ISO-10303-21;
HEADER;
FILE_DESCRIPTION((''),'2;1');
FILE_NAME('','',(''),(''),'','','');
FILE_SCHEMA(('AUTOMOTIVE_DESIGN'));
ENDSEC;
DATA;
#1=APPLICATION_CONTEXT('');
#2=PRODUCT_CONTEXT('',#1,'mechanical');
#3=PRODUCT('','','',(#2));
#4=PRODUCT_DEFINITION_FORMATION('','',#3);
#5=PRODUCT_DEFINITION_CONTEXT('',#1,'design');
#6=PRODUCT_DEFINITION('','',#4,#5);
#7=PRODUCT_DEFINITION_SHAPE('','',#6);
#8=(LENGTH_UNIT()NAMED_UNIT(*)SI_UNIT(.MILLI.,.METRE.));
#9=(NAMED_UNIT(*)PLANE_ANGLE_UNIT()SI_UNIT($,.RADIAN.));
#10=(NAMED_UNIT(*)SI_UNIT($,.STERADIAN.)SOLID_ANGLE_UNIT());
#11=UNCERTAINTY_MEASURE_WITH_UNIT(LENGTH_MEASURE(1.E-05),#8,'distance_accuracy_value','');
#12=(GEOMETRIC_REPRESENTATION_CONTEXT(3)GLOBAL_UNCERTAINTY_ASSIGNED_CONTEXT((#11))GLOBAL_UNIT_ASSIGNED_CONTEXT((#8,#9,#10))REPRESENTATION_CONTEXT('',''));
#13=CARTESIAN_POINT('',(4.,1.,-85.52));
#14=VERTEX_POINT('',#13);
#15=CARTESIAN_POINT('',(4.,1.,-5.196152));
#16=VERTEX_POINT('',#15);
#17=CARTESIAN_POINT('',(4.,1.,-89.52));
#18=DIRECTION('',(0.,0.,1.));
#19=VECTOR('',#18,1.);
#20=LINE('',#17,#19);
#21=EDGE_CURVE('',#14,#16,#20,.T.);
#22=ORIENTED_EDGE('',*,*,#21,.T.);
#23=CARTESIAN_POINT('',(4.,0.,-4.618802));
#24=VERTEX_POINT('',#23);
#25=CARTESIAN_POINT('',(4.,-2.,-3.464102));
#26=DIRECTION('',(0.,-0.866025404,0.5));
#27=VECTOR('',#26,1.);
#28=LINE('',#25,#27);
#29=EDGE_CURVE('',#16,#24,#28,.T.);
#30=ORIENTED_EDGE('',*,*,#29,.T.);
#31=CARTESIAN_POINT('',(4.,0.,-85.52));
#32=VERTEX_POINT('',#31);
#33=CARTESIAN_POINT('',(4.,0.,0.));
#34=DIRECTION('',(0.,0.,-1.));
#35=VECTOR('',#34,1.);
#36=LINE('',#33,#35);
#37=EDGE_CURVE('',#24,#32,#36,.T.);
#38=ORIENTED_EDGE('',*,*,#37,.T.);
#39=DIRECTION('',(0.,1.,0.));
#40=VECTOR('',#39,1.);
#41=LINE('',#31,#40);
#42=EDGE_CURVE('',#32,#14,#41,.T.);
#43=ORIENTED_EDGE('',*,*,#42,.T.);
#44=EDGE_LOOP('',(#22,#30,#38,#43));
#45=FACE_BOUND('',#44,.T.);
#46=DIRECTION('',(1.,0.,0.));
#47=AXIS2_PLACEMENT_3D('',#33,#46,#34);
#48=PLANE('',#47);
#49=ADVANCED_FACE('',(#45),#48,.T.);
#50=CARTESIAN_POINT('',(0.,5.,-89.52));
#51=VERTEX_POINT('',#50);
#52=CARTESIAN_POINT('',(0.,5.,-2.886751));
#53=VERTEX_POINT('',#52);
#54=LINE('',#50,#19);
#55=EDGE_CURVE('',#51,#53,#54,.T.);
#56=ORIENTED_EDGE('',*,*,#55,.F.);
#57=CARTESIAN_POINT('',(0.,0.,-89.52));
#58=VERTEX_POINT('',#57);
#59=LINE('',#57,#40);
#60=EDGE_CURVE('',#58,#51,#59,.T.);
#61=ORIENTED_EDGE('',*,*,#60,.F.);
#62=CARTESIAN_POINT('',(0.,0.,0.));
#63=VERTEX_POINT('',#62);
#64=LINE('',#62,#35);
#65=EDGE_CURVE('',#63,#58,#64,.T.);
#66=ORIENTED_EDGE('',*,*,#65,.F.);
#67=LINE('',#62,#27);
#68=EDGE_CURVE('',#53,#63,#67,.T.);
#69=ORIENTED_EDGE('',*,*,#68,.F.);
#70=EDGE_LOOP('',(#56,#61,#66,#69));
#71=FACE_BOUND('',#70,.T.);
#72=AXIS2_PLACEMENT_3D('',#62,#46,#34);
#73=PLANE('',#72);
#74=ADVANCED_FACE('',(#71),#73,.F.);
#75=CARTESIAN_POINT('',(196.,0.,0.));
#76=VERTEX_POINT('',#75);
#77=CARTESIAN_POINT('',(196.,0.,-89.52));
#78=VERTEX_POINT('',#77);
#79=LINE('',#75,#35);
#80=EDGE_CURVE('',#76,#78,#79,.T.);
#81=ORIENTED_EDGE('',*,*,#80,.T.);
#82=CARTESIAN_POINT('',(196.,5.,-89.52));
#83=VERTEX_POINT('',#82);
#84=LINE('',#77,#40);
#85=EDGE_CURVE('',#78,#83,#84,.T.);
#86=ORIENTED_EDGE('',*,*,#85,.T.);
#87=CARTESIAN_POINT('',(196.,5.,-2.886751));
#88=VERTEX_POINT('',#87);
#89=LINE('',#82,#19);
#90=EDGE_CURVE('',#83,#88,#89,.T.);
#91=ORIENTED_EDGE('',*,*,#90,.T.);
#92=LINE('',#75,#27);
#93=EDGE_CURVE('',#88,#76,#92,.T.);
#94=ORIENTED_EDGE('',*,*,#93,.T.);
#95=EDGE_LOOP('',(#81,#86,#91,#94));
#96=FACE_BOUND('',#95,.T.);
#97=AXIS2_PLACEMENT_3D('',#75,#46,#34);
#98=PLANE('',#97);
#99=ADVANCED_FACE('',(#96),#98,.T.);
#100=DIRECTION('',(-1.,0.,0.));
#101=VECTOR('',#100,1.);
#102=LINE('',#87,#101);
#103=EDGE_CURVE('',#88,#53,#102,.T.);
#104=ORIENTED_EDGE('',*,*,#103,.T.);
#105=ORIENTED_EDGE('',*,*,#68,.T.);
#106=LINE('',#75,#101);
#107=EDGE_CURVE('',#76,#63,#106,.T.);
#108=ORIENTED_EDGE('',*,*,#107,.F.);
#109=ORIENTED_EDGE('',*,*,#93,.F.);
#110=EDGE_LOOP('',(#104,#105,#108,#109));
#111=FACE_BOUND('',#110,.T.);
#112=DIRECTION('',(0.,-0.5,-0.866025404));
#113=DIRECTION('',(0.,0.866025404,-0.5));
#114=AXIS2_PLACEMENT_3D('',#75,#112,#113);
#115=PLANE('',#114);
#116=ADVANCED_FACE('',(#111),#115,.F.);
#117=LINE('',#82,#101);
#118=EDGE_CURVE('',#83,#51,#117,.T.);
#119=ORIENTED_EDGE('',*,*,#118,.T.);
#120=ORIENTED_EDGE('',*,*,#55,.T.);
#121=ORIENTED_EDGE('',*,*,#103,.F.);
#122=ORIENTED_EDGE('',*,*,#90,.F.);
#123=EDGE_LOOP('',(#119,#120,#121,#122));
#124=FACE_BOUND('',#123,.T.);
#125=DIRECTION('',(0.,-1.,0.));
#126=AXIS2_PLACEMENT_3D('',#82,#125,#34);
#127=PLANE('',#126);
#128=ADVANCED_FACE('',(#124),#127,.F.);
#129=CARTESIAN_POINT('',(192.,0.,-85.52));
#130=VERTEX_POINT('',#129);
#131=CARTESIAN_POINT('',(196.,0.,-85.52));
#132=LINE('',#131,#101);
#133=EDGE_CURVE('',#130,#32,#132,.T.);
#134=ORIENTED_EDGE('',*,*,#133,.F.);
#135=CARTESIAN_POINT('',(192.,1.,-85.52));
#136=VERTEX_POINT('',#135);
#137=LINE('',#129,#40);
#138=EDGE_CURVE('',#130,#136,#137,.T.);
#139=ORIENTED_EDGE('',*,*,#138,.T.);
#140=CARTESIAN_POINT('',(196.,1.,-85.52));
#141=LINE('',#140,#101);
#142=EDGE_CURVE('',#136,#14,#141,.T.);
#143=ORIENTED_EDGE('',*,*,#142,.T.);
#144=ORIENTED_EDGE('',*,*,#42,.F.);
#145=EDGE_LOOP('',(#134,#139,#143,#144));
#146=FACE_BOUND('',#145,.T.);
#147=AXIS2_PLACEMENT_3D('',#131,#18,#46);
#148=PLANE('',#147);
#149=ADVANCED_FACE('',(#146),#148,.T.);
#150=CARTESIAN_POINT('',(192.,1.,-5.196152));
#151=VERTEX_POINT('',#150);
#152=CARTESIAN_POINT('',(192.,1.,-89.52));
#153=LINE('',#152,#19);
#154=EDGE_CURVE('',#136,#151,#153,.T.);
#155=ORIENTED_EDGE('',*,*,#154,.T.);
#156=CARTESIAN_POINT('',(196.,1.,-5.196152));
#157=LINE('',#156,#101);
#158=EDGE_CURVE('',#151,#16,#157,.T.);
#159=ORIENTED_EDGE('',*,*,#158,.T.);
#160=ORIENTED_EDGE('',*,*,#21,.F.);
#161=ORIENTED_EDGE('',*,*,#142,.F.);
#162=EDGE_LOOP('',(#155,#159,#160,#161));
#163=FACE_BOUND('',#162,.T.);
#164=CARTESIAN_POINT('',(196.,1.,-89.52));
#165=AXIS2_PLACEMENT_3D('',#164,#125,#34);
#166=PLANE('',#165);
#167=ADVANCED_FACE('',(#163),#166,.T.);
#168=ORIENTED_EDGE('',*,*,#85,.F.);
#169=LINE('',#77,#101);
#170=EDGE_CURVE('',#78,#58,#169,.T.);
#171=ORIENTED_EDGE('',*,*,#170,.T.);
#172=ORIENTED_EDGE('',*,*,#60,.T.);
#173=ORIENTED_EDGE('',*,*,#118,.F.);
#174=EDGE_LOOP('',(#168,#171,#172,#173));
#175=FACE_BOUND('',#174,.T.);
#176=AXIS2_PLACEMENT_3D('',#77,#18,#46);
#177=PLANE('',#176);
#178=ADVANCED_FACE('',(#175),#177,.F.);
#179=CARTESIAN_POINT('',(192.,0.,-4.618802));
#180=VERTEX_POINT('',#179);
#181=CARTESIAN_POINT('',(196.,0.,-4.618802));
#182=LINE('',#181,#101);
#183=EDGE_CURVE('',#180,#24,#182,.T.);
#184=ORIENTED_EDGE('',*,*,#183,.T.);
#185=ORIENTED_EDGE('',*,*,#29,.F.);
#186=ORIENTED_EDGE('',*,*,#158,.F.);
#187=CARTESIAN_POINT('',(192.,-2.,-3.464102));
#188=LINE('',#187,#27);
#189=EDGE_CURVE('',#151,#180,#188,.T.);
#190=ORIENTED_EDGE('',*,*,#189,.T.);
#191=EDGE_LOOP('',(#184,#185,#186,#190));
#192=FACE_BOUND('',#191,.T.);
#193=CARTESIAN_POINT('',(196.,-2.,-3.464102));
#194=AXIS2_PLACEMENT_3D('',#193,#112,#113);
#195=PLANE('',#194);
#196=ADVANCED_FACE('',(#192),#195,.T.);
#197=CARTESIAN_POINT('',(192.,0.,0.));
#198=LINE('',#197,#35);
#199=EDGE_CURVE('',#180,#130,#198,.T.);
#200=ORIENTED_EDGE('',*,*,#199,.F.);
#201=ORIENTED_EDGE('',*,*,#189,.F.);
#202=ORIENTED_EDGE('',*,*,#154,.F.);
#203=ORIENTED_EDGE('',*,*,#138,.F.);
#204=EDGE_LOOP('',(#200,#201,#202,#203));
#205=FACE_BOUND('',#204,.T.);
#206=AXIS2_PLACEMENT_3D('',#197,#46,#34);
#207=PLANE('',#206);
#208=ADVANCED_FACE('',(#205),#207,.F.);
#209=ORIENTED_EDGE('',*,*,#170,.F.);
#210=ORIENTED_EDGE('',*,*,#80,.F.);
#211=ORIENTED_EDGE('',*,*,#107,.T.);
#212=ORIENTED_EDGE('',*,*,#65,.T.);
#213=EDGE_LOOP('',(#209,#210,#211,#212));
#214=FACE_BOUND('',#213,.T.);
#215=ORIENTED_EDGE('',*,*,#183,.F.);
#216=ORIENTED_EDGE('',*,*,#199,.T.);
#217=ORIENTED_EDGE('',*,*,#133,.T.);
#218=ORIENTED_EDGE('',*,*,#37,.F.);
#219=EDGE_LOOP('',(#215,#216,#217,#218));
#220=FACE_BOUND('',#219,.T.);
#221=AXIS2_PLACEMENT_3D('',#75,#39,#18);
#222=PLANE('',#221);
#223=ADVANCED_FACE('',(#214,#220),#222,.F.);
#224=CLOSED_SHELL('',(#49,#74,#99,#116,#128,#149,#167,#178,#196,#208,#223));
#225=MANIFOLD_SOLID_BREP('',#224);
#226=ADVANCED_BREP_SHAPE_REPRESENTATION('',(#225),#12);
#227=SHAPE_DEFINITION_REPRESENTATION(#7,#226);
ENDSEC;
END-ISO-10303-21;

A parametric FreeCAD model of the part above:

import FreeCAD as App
import Part
import Sketcher

V = App.Vector
Q = App.Units.Quantity


def faces_at(feature, points):
    """Names of the faces that lie closest to the given points."""
    faces = feature.Shape.Faces
    near = lambda p: min(range(len(faces)), key=lambda i: faces[i].distToShape(Part.Vertex(*p))[0])
    return sorted({f"Face{near(p) + 1}" for p in points})

doc = App.newDocument("Part")
body = doc.addObject("PartDesign::Body", "Body")

# Sketch on YZ plane
sketch1 = body.newObject("Sketcher::SketchObject", "Sketch")
sketch1.AttachmentSupport = (doc.getObject("YZ_Plane"), [""])
sketch1.MapMode = "FlatFace"
sketch1.addGeometry(Part.LineSegment(V(0, 0, 0), V(0, -90, 0)), False)
sketch1.addGeometry(Part.LineSegment(V(0, -90, 0), V(5, -90, 0)), False)
sketch1.addGeometry(Part.LineSegment(V(5, -90, 0), V(5, -3, 0)), False)
sketch1.addGeometry(Part.LineSegment(V(5, -3, 0), V(0, 0, 0)), False)
sketch1.addConstraint(Sketcher.Constraint("Coincident", 0, 2, 1, 1))
sketch1.addConstraint(Sketcher.Constraint("Coincident", 1, 2, 2, 1))
sketch1.addConstraint(Sketcher.Constraint("Coincident", 2, 2, 3, 1))
sketch1.addConstraint(Sketcher.Constraint("Coincident", 3, 2, 0, 1))
sketch1.addConstraint(Sketcher.Constraint("Vertical", 0))
sketch1.addConstraint(Sketcher.Constraint("Horizontal", 1))
sketch1.addConstraint(Sketcher.Constraint("Vertical", 2))
sketch1.addConstraint(Sketcher.Constraint("Coincident", 3, 2, -1, 1))
sketch1.addConstraint(Sketcher.Constraint("DistanceX", 1, 1, 1, 2, 5.0))
sketch1.addConstraint(Sketcher.Constraint("Angle", 3, Q("150 deg")))
sketch1.addConstraint(Sketcher.Constraint("DistanceY", 0, 2, 0, 1, 89.52))
pad1 = body.newObject("PartDesign::Pad", "Pad")
pad1.Profile = sketch1
pad1.Length = 196
doc.recompute()

thickness = body.newObject("PartDesign::Thickness", "Thickness")
thickness.Base = (pad1, faces_at(pad1, [(98, 0, -44.76)]))
thickness.Value = 4
thickness.Reversed = True
thickness.Join = "Intersection"

doc.recompute()
